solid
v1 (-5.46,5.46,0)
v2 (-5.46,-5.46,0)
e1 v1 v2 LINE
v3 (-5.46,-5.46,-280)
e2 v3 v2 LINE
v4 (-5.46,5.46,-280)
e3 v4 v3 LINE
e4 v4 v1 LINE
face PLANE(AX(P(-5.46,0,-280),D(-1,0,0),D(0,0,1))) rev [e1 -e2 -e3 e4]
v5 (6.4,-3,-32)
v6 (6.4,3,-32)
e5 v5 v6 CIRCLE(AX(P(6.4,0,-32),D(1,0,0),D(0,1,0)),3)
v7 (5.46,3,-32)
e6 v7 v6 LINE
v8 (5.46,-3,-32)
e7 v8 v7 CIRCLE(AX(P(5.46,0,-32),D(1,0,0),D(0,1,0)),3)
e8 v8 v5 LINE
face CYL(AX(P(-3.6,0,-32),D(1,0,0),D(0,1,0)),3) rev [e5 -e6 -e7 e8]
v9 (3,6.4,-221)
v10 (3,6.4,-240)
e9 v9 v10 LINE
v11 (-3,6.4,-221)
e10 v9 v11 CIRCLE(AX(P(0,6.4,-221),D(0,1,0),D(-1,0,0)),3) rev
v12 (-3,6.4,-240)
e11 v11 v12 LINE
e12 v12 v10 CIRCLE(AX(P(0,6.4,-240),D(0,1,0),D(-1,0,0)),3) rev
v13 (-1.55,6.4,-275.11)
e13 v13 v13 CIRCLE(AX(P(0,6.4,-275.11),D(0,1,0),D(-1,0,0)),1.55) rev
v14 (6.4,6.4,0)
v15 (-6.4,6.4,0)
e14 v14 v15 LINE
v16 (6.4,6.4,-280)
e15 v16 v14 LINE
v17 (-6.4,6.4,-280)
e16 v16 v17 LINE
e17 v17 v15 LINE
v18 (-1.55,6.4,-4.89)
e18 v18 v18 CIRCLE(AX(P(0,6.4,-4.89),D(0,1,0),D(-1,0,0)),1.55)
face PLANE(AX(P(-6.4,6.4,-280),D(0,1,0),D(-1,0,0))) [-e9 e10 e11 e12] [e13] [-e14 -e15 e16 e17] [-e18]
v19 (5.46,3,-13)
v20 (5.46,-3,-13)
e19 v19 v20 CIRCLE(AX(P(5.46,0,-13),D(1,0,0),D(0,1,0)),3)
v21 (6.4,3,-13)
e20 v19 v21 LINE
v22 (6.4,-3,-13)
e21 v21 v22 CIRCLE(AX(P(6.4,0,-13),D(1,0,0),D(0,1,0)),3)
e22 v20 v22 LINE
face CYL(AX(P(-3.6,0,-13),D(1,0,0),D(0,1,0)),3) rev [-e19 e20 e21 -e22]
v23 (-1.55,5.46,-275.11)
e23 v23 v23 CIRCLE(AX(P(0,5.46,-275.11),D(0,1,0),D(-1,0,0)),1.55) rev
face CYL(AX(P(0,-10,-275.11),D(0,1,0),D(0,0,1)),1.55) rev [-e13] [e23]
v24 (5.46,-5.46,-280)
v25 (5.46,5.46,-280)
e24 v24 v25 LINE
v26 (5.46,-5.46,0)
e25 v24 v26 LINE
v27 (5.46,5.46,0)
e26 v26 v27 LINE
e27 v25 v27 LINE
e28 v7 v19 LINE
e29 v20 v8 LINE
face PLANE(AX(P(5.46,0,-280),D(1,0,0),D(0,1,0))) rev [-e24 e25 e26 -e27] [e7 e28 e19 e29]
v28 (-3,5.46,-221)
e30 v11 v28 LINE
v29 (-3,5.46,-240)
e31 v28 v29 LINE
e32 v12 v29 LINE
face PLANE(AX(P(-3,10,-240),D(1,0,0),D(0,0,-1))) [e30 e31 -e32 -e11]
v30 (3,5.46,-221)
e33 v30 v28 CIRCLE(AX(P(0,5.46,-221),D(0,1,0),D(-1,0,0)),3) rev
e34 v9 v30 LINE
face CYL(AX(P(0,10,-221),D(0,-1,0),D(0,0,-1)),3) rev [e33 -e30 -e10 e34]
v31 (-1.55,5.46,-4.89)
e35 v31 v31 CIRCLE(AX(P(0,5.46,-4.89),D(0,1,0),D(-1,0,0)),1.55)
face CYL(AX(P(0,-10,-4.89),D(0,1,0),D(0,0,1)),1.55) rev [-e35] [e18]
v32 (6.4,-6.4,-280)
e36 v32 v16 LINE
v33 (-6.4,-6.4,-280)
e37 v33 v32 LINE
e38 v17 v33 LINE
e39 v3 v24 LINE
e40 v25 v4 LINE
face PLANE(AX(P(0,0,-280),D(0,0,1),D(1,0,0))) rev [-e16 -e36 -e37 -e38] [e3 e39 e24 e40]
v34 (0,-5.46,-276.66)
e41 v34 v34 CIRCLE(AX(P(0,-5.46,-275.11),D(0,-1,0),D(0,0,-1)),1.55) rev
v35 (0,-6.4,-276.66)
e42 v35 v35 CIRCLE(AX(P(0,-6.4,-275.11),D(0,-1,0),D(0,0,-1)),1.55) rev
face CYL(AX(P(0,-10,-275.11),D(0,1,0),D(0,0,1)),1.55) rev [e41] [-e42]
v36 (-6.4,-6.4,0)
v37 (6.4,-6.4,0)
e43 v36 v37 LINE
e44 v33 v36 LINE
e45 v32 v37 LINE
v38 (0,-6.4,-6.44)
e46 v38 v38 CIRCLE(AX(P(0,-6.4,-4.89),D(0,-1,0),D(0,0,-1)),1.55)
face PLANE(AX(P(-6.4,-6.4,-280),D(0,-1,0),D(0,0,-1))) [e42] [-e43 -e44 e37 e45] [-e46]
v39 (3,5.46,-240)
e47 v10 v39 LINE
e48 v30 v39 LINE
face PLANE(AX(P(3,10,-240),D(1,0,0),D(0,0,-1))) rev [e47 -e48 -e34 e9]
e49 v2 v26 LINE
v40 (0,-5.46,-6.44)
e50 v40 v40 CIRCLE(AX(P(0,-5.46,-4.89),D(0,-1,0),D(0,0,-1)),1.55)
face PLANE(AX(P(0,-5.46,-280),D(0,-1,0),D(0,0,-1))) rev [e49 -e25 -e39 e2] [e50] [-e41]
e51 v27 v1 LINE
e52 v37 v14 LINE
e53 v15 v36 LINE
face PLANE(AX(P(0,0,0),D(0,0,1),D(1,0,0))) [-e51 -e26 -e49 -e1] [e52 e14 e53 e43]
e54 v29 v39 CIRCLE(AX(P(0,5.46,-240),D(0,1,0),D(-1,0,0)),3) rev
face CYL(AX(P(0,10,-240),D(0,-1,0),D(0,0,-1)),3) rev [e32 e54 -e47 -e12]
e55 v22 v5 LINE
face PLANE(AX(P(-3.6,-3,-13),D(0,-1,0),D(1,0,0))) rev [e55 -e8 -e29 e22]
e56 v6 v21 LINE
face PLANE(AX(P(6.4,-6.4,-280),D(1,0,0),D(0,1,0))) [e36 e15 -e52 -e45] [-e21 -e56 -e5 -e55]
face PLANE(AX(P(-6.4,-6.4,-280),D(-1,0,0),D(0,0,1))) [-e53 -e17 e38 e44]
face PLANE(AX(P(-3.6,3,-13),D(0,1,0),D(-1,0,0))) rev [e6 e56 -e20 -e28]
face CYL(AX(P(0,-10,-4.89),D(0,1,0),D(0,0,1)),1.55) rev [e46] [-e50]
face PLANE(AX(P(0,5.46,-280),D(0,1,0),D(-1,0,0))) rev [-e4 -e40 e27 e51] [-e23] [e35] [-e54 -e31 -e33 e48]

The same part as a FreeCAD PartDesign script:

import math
import FreeCAD as App
import Part
import Sketcher


def add_polygon(sketch, points):
    """Adds a closed chain of lines whose ends are joined by coincident constraints."""
    first, n = sketch.GeometryCount, len(points)
    for a, b in zip(points, points[1:] + points[:1]):
        sketch.addGeometry(Part.LineSegment(App.Vector(*a, 0), App.Vector(*b, 0)), False)
    for i in range(n):
        sketch.addConstraint(Sketcher.Constraint("Coincident", first + i, 2, first + (i + 1) % n, 1))

doc = App.newDocument("Part")
body = doc.addObject("PartDesign::Body", "Body")

sketch1 = body.newObject("Sketcher::SketchObject", "Sketch")
sketch1.AttachmentSupport = (doc.getObject("XY_Plane"), [""])
sketch1.MapMode = "FlatFace"
add_polygon(sketch1, [(-6.4, 6.4), (-6.4, -6.4), (6.4, -6.4), (6.4, 6.4)])
add_polygon(sketch1, [(5.46, -5.46), (-5.46, -5.46), (-5.46, 5.46), (5.46, 5.46)])
sketch1.addConstraint([
    Sketcher.Constraint("Vertical", 0),
    Sketcher.Constraint("Horizontal", 1),
    Sketcher.Constraint("Vertical", 2),
    Sketcher.Constraint("Horizontal", 3),
    Sketcher.Constraint("Horizontal", 4),
    Sketcher.Constraint("Vertical", 5),
    Sketcher.Constraint("Horizontal", 6),
    Sketcher.Constraint("Vertical", 7),
    Sketcher.Constraint("Symmetric", 0, 2, 2, 2, -1, 1),
    Sketcher.Constraint("Symmetric", 4, 2, 6, 2, -1, 1),
    Sketcher.Constraint("Equal", 3, 0),
    Sketcher.Constraint("Equal", 6, 5),
    Sketcher.Constraint("DistanceX", 1, 1, 1, 2, 12.8),
    Sketcher.Constraint("DistanceX", 4, 2, 4, 1, 10.92),
])
pad1 = body.newObject("PartDesign::Pad", "Pad")
pad1.Profile = sketch1
pad1.Length = 280
pad1.Reversed = True

sketch2 = body.newObject("Sketcher::SketchObject", "Sketch001")
sketch2.AttachmentSupport = (doc.getObject("XZ_Plane"), [""])
sketch2.MapMode = "FlatFace"
sketch2.addGeometry([
    Part.Circle(App.Vector(0, -275.11, 0), App.Vector(0, 0, 1), 1.55),
    Part.Circle(App.Vector(0, -4.89, 0), App.Vector(0, 0, 1), 1.55),
], False)
sketch2.addConstraint([
    Sketcher.Constraint("Equal", 0, 1),
    Sketcher.Constraint("PointOnObject", 0, 3, -2),
    Sketcher.Constraint("PointOnObject", 1, 3, -2),
    Sketcher.Constraint("Diameter", 0, 3.1),
    Sketcher.Constraint("DistanceY", 0, 3, -1, 1, 275.11),
    Sketcher.Constraint("DistanceY", 1, 3, -1, 1, 4.89),
])
pocket1 = body.newObject("PartDesign::Pocket", "Pocket")
pocket1.Profile = sketch2
pocket1.Type = "ThroughAll"
pocket1.Midplane = True

sketch3 = body.newObject("Sketcher::SketchObject", "Sketch002")
sketch3.AttachmentSupport = (doc.getObject("XZ_Plane"), [""])
sketch3.MapMode = "FlatFace"
sketch3.addGeometry([
    Part.LineSegment(App.Vector(3, -221, 0), App.Vector(3, -240, 0)),
    Part.ArcOfCircle(Part.Circle(App.Vector(0, -240, 0), App.Vector(0, 0, 1), 3), math.radians(180), math.radians(360)),
    Part.LineSegment(App.Vector(-3, -240, 0), App.Vector(-3, -221, 0)),
    Part.ArcOfCircle(Part.Circle(App.Vector(0, -221, 0), App.Vector(0, 0, 1), 3), math.radians(0), math.radians(180)),
], False)
sketch3.addConstraint([
    Sketcher.Constraint("Tangent", 0, 2, 1, 2),
    Sketcher.Constraint("Tangent", 1, 1, 2, 1),
    Sketcher.Constraint("Tangent", 2, 2, 3, 2),
    Sketcher.Constraint("Tangent", 3, 1, 0, 1),
    Sketcher.Constraint("Vertical", 0),
    Sketcher.Constraint("Vertical", 2),
    Sketcher.Constraint("PointOnObject", 1, 3, -2),
    Sketcher.Constraint("Radius", 1, 3.0),
    Sketcher.Constraint("DistanceY", 0, 2, 0, 1, 19.0),
    Sketcher.Constraint("DistanceY", 1, 3, -1, 1, 240.0),
])
pocket2 = body.newObject("PartDesign::Pocket", "Pocket001")
pocket2.Profile = sketch3
pocket2.Length = 10

sketch4 = body.newObject("Sketcher::SketchObject", "Sketch003")
sketch4.AttachmentSupport = (doc.getObject("YZ_Plane"), [""])
sketch4.MapMode = "FlatFace"
sketch4.AttachmentOffset = App.Placement(App.Vector(0, 0, 6.4), App.Rotation())
sketch4.addGeometry([
    Part.LineSegment(App.Vector(3, -32, 0), App.Vector(3, -13, 0)),
    Part.ArcOfCircle(Part.Circle(App.Vector(0, -13, 0), App.Vector(0, 0, 1), 3), math.radians(0), math.radians(180)),
    Part.LineSegment(App.Vector(-3, -13, 0), App.Vector(-3, -32, 0)),
    Part.ArcOfCircle(Part.Circle(App.Vector(0, -32, 0), App.Vector(0, 0, 1), 3), math.radians(180), math.radians(360)),
], False)
sketch4.addConstraint([
    Sketcher.Constraint("Tangent", 0, 2, 1, 1),
    Sketcher.Constraint("Tangent", 1, 2, 2, 1),
    Sketcher.Constraint("Tangent", 2, 2, 3, 1),
    Sketcher.Constraint("Tangent", 3, 2, 0, 1),
    Sketcher.Constraint("Vertical", 0),
    Sketcher.Constraint("Vertical", 2),
    Sketcher.Constraint("PointOnObject", 1, 3, -2),
    Sketcher.Constraint("Radius", 1, 3.0),
    Sketcher.Constraint("DistanceY", 0, 1, 0, 2, 19.0),
    Sketcher.Constraint("DistanceY", 1, 3, -1, 1, 13.0),
])
pocket3 = body.newObject("PartDesign::Pocket", "Pocket002")
pocket3.Profile = sketch4
pocket3.Length = 10

doc.recompute()
